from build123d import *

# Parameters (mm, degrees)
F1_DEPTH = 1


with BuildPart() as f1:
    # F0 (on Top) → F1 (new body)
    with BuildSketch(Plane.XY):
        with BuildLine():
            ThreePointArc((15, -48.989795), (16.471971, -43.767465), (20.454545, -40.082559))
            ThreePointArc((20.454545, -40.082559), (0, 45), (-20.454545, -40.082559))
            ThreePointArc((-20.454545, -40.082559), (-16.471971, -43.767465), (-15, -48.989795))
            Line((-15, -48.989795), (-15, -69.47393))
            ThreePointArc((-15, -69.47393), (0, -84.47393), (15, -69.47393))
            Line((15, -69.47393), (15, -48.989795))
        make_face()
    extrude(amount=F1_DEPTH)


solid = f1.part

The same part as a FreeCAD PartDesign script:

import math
import FreeCAD as App
import Part
import Sketcher

V = App.Vector
Q = App.Units.Quantity

doc = App.newDocument("Part")
body = doc.addObject("PartDesign::Body", "Body")

# Sketch on XY plane
sketch1 = body.newObject("Sketcher::SketchObject", "Sketch")
sketch1.AttachmentSupport = (doc.getObject("XY_Plane"), [""])
sketch1.MapMode = "FlatFace"
sketch1.addGeometry(Part.ArcOfCircle(Part.Circle(V(25, -49, 0), V(0, 0, 1), 10), math.radians(117), math.radians(180)), False)
sketch1.addGeometry(Part.ArcOfCircle(Part.Circle(V(0, 0, 0), V(0, 0, 1), 45), math.radians(-63), math.radians(243)), False)
sketch1.addGeometry(Part.ArcOfCircle(Part.Circle(V(-25, -49, 0), V(0, 0, 1), 10), math.radians(0), math.radians(63)), False)
sketch1.addGeometry(Part.LineSegment(V(-15, -49, 0), V(-15, -69, 0)), False)
sketch1.addGeometry(Part.ArcOfCircle(Part.Circle(V(0, -69, 0), V(0, 0, 1), 15), math.radians(180), math.radians(360)), False)
sketch1.addGeometry(Part.LineSegment(V(15, -69, 0), V(15, -49, 0)), False)
sketch1.addConstraint(Sketcher.Constraint("Tangent", 0, 1, 1, 1))
sketch1.addConstraint(Sketcher.Constraint("Tangent", 1, 2, 2, 2))
sketch1.addConstraint(Sketcher.Constraint("Tangent", 2, 1, 3, 1))
sketch1.addConstraint(Sketcher.Constraint("Tangent", 3, 2, 4, 1))
sketch1.addConstraint(Sketcher.Constraint("Tangent", 4, 2, 5, 1))
sketch1.addConstraint(Sketcher.Constraint("Tangent", 5, 2, 0, 2))
sketch1.addConstraint(Sketcher.Constraint("Vertical", 3))
sketch1.addConstraint(Sketcher.Constraint("Vertical", 5))
sketch1.addConstraint(Sketcher.Constraint("Coincident", 1, 3, -1, 1))
sketch1.addConstraint(Sketcher.Constraint("Equal", 0, 2))
sketch1.addConstraint(Sketcher.Constraint("PointOnObject", 4, 3, -2))
sketch1.addConstraint(Sketcher.Constraint("Radius", 0, Q("10 mm")))
sketch1.addConstraint(Sketcher.Constraint("Radius", 1, Q("45 mm")))
sketch1.addConstraint(Sketcher.Constraint("Radius", 4, Q("15 mm")))
sketch1.addConstraint(Sketcher.Constraint("DistanceY", 3, 2, 3, 1, Q("20.484135 mm")))
pad1 = body.newObject("PartDesign::Pad", "Pad")
pad1.Profile = sketch1
pad1.Length = 1

doc.recompute()
